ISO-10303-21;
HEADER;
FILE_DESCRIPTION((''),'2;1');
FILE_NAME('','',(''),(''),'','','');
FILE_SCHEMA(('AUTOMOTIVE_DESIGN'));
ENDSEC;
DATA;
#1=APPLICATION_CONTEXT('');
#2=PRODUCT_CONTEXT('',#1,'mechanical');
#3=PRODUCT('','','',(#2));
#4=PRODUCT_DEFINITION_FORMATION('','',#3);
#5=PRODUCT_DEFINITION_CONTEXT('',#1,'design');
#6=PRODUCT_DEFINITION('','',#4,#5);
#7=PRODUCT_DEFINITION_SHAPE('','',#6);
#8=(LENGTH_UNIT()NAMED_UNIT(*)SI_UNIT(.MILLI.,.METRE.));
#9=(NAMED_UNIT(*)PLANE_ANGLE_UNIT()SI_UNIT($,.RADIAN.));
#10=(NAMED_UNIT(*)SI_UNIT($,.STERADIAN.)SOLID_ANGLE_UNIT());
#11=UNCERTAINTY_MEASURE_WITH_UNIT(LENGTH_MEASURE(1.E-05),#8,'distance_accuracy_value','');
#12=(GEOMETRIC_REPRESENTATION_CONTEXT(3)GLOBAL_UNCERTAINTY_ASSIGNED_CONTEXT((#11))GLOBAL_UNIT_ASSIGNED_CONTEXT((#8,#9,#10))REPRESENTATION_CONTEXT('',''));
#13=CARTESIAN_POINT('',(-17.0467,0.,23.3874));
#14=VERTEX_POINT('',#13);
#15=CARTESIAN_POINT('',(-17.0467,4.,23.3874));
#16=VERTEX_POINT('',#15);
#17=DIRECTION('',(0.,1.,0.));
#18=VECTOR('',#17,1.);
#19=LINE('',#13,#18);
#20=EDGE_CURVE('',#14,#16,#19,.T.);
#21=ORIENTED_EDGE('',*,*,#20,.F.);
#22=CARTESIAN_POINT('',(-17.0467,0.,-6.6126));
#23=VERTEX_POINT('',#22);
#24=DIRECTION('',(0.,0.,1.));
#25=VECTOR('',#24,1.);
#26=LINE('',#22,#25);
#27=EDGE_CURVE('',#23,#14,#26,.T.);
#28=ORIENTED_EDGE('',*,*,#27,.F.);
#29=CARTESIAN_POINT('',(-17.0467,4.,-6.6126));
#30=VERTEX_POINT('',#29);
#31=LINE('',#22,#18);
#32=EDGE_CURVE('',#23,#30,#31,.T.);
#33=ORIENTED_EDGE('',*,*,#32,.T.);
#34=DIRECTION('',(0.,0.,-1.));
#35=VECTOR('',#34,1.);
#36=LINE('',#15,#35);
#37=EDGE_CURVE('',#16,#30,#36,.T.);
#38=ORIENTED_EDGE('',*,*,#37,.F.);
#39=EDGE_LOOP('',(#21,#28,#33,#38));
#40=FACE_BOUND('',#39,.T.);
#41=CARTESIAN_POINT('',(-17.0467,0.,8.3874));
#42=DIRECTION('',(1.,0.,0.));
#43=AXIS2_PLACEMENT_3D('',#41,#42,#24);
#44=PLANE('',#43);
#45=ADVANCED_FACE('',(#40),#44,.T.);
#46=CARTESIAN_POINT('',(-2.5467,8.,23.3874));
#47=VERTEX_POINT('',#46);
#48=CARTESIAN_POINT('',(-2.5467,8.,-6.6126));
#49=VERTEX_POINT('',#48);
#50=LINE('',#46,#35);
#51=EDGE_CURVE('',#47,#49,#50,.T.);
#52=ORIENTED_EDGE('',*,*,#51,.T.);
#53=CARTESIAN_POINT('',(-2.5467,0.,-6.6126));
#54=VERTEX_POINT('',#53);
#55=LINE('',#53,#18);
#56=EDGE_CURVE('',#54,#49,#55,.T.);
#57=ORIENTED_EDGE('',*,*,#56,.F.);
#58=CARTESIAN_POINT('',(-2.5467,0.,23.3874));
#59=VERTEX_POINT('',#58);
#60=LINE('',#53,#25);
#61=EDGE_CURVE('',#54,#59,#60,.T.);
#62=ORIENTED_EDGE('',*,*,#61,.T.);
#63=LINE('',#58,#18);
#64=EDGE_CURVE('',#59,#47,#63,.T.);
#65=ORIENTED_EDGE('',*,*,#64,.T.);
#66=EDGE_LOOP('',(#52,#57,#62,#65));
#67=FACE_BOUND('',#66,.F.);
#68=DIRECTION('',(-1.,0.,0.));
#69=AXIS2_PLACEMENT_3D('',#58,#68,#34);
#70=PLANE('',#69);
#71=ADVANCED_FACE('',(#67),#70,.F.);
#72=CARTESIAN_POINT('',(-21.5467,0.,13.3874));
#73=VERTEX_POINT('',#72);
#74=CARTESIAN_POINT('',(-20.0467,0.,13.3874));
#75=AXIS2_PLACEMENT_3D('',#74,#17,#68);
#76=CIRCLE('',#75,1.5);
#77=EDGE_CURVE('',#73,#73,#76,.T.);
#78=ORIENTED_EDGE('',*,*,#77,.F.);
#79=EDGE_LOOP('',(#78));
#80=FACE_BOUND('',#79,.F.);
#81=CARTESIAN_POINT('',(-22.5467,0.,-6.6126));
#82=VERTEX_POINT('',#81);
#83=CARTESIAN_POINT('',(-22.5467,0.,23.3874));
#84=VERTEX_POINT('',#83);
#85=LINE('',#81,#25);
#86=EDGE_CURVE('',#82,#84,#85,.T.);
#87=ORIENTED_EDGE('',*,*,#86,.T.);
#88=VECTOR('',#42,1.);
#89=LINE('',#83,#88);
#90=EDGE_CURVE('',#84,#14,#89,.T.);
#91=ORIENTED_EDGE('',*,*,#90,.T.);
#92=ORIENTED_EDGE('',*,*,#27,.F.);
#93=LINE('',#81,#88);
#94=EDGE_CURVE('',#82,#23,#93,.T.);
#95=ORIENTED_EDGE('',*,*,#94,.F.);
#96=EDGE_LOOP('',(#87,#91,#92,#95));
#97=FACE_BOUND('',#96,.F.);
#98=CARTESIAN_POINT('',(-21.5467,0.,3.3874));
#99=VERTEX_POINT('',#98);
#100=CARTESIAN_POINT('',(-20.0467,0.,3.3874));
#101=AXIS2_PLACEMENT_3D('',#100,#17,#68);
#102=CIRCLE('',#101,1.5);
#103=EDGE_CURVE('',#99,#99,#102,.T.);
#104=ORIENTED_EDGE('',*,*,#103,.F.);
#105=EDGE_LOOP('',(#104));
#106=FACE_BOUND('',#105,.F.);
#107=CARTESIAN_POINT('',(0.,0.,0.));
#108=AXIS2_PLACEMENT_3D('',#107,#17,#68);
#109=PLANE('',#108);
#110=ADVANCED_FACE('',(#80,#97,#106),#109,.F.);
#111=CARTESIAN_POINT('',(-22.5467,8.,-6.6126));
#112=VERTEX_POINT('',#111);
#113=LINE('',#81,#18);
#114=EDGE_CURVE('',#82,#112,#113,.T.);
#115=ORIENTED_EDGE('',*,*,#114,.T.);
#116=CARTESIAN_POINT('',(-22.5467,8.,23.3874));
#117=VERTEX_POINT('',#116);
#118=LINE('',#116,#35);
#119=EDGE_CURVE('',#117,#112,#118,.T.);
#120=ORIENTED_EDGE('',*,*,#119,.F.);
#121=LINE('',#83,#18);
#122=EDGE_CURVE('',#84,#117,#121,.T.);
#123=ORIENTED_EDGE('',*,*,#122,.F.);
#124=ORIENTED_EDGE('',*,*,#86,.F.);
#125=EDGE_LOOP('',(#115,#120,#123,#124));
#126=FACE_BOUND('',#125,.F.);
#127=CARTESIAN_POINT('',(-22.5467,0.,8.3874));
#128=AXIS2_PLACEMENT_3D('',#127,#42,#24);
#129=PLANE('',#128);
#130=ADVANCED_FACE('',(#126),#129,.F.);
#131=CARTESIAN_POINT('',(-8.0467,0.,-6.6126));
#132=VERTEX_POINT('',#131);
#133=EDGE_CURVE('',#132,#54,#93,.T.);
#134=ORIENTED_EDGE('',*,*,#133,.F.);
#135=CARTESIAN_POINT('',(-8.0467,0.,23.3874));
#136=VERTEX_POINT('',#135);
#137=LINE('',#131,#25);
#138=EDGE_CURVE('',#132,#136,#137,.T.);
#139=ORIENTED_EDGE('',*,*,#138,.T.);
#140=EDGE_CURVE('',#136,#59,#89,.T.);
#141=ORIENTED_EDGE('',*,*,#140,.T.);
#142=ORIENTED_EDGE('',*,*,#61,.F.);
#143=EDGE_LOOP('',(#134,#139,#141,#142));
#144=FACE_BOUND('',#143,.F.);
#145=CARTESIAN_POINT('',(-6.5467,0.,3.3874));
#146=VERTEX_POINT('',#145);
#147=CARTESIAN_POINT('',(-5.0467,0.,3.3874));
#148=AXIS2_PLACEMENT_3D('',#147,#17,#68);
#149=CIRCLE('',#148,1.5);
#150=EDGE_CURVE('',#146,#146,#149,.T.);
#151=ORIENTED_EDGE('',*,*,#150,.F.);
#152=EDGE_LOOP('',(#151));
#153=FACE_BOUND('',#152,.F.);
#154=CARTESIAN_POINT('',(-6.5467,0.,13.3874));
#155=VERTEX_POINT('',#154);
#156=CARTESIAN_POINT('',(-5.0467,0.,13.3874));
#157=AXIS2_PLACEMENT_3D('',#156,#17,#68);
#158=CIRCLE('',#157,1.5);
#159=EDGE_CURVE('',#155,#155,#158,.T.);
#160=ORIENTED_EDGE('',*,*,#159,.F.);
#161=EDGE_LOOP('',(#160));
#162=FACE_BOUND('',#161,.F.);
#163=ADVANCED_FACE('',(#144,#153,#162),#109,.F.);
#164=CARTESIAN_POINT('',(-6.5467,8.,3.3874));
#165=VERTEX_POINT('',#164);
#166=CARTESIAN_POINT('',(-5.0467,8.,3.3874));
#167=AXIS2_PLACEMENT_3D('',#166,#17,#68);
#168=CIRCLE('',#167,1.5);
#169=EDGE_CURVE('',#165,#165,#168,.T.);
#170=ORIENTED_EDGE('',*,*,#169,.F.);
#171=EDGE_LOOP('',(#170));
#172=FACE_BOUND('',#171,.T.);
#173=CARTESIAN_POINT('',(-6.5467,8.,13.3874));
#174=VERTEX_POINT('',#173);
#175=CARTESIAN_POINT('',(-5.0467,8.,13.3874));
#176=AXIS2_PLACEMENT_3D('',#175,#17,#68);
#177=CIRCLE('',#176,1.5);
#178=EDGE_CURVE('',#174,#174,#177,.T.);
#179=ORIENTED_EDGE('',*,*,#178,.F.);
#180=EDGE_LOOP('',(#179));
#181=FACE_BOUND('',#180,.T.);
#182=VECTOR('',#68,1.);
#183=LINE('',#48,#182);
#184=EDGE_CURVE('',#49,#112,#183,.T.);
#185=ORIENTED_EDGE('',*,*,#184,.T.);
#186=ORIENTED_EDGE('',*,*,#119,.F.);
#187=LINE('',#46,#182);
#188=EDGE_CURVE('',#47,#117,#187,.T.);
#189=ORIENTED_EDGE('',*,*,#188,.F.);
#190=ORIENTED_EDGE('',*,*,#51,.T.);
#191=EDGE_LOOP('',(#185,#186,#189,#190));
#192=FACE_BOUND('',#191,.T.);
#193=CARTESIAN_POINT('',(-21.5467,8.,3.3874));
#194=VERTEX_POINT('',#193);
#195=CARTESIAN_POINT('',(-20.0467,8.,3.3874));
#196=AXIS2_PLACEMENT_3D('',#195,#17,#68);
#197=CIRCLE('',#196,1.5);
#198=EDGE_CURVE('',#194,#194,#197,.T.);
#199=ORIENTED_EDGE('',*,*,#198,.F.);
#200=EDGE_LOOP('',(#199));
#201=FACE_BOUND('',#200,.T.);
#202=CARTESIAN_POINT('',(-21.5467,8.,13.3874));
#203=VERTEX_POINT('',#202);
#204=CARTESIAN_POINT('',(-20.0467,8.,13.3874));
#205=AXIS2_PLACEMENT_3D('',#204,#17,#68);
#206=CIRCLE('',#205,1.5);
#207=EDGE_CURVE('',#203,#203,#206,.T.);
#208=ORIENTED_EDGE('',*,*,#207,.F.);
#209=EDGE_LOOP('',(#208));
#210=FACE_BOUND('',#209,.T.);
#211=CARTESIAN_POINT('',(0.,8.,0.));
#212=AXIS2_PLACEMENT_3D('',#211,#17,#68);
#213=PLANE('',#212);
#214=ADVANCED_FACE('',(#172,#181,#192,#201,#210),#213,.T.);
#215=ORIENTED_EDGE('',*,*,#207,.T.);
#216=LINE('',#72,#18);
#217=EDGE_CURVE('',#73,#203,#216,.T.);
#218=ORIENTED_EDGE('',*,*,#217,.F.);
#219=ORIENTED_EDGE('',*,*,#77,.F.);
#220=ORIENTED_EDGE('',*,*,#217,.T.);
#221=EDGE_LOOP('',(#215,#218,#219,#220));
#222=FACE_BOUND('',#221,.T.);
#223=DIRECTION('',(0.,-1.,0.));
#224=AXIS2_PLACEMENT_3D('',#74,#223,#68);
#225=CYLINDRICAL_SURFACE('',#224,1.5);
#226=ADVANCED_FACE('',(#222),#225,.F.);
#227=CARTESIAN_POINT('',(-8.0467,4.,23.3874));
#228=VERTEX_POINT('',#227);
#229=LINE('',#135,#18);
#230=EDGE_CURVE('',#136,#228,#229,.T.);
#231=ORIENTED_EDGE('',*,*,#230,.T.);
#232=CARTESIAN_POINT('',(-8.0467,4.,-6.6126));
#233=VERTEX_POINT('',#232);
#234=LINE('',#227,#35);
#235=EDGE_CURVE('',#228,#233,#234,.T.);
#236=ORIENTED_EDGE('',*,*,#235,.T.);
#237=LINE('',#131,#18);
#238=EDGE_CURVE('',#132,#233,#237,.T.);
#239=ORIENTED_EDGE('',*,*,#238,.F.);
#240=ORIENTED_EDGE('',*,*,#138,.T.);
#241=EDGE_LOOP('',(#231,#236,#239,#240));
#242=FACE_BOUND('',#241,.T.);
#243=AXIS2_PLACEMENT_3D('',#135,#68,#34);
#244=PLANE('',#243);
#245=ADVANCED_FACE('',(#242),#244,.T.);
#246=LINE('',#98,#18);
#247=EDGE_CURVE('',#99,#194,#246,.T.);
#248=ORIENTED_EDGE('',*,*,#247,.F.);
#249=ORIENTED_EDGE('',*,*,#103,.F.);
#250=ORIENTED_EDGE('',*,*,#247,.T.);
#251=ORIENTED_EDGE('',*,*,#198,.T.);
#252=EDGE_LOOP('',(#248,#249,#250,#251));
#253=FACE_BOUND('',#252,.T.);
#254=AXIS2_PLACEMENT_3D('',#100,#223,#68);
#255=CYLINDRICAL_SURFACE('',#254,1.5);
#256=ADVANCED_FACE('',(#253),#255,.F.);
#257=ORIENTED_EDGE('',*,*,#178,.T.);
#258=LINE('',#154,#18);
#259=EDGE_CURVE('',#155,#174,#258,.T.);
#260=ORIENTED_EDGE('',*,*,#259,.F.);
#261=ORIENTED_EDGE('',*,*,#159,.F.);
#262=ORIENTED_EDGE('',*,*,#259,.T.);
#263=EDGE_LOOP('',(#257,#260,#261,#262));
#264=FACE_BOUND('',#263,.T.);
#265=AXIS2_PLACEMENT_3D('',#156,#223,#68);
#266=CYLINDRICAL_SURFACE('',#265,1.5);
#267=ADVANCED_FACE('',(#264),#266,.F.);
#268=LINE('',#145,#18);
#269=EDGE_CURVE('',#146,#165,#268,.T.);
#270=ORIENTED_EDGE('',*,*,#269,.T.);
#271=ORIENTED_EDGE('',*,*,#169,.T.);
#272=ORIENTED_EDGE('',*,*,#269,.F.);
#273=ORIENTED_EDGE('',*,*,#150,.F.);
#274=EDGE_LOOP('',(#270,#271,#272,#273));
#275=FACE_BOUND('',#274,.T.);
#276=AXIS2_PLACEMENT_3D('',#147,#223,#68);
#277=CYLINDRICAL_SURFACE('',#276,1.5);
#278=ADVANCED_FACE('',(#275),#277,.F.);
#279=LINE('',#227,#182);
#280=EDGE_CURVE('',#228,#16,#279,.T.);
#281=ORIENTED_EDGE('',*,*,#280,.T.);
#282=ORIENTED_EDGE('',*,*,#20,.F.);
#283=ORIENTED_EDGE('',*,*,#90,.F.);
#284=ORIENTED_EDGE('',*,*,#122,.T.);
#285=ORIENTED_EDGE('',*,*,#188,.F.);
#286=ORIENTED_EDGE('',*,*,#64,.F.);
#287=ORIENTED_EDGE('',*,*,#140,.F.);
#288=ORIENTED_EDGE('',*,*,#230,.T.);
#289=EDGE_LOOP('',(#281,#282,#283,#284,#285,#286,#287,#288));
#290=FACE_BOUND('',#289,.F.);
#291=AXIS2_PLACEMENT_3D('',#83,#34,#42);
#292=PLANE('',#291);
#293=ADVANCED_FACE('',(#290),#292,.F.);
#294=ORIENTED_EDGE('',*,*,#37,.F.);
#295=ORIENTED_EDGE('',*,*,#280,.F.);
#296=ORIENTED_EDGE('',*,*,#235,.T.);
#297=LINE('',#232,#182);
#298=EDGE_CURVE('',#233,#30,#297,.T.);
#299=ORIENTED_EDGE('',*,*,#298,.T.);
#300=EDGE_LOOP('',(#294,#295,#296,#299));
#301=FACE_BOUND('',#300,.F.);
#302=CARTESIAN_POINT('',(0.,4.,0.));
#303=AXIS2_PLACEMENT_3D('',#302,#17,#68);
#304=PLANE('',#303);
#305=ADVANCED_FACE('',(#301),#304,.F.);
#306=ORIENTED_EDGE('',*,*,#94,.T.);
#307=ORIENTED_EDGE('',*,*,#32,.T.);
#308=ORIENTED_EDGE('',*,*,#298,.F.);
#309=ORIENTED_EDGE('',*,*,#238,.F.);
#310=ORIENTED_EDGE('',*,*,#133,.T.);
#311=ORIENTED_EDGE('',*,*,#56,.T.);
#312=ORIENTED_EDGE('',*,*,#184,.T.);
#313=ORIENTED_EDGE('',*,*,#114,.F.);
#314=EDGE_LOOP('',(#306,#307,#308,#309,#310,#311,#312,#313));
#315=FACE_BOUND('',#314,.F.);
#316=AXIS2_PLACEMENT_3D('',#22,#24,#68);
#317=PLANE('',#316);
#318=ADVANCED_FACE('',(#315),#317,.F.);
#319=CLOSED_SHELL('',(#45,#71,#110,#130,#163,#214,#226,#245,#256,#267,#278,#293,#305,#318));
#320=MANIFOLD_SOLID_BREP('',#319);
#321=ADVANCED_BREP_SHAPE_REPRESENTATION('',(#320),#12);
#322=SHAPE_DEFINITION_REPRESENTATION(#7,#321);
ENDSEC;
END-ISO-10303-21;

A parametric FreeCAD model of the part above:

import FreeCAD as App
import Part
import Sketcher

doc = App.newDocument("Part")
body = doc.addObject("PartDesign::Body", "Body")

# Sketch on XZ plane
sketch1 = body.newObject("Sketcher::SketchObject", "Sketch")
sketch1.AttachmentSupport = (doc.getObject("XZ_Plane"), [""])
sketch1.MapMode = "FlatFace"
sketch1.addGeometry([
    Part.LineSegment(App.Vector(-22.5, 23.4, 0), App.Vector(-2.5, 23.4, 0)),  # 0
    Part.LineSegment(App.Vector(-2.5, 23.4, 0), App.Vector(-2.5, -6.6, 0)),  # 1
    Part.LineSegment(App.Vector(-2.5, -6.6, 0), App.Vector(-22.5, -6.6, 0)),  # 2
    Part.LineSegment(App.Vector(-22.5, -6.6, 0), App.Vector(-22.5, 23.4, 0)),  # 3
    Part.Circle(App.Vector(-20, 13.4, 0), App.Vector(0, 0, 1), 1.5),  # 4
    Part.Circle(App.Vector(-20, 3.4, 0), App.Vector(0, 0, 1), 1.5),  # 5
    Part.Circle(App.Vector(-5, 13.4, 0), App.Vector(0, 0, 1), 1.5),  # 6
    Part.Circle(App.Vector(-5, 3.4, 0), App.Vector(0, 0, 1), 1.5),  # 7
], False)
sketch1.addConstraint([
    Sketcher.Constraint("Coincident", 0, 2, 1, 1),
    Sketcher.Constraint("Coincident", 1, 2, 2, 1),
    Sketcher.Constraint("Coincident", 2, 2, 3, 1),
    Sketcher.Constraint("Coincident", 3, 2, 0, 1),
    Sketcher.Constraint("Horizontal", 0),
    Sketcher.Constraint("Vertical", 1),
    Sketcher.Constraint("Horizontal", 2),
    Sketcher.Constraint("Vertical", 3),
    Sketcher.Constraint("Equal", 4, 5),
    Sketcher.Constraint("Equal", 5, 6),
    Sketcher.Constraint("Equal", 6, 7),
    Sketcher.Constraint("Horizontal", 4, 3, 6, 3),
    Sketcher.Constraint("Horizontal", 5, 3, 7, 3),
    Sketcher.Constraint("Vertical", 4, 3, 5, 3),
    Sketcher.Constraint("Vertical", 6, 3, 7, 3),
    Sketcher.Constraint("Diameter", 4, 3.0),
    Sketcher.Constraint("DistanceX", 0, 1, 0, 2, 20.0),
    Sketcher.Constraint("DistanceY", 1, 2, 1, 1, 30.0),
    Sketcher.Constraint("DistanceY", 5, 3, 4, 3, 10.0),
    Sketcher.Constraint("DistanceX", 4, 3, 6, 3, 15.0),
    Sketcher.Constraint("DistanceY", 6, 3, 0, 2, 10.0),
    Sketcher.Constraint("DistanceX", 6, 3, 0, 2, 2.5),
    Sketcher.Constraint("DistanceX", 4, 3, -1, 1, 20.0467),
    Sketcher.Constraint("DistanceY", -1, 1, 4, 3, 13.3874),
])
pad1 = body.newObject("PartDesign::Pad", "Pad")
pad1.Profile = sketch1
pad1.Length = 8
pad1.Reversed = True

# Sketch on XZ plane
sketch2 = body.newObject("Sketcher::SketchObject", "Sketch001")
sketch2.AttachmentSupport = (doc.getObject("XZ_Plane"), [""])
sketch2.MapMode = "FlatFace"
sketch2.addGeometry([
    Part.LineSegment(App.Vector(-17, 23, 0), App.Vector(-8, 23, 0)),
    Part.LineSegment(App.Vector(-8, 23, 0), App.Vector(-8, -7, 0)),
    Part.LineSegment(App.Vector(-8, -7, 0), App.Vector(-17, -7, 0)),
    Part.LineSegment(App.Vector(-17, -7, 0), App.Vector(-17, 23, 0)),
], False)
sketch2.addConstraint([
    Sketcher.Constraint("Coincident", 0, 2, 1, 1),
    Sketcher.Constraint("Coincident", 1, 2, 2, 1),
    Sketcher.Constraint("Coincident", 2, 2, 3, 1),
    Sketcher.Constraint("Coincident", 3, 2, 0, 1),
    Sketcher.Constraint("Horizontal", 0),
    Sketcher.Constraint("Vertical", 1),
    Sketcher.Constraint("Horizontal", 2),
    Sketcher.Constraint("Vertical", 3),
    Sketcher.Constraint("DistanceX", 0, 1, 0, 2, 9.0),
    Sketcher.Constraint("DistanceY", 1, 2, 1, 1, 30.0),
    Sketcher.Constraint("DistanceX", 0, 2, -1, 1, 8.0467),
    Sketcher.Constraint("DistanceY", -1, 1, 0, 2, 23.3874),
])
pocket1 = body.newObject("PartDesign::Pocket", "Pocket")
pocket1.Profile = sketch2
pocket1.Length = 4

doc.recompute()
